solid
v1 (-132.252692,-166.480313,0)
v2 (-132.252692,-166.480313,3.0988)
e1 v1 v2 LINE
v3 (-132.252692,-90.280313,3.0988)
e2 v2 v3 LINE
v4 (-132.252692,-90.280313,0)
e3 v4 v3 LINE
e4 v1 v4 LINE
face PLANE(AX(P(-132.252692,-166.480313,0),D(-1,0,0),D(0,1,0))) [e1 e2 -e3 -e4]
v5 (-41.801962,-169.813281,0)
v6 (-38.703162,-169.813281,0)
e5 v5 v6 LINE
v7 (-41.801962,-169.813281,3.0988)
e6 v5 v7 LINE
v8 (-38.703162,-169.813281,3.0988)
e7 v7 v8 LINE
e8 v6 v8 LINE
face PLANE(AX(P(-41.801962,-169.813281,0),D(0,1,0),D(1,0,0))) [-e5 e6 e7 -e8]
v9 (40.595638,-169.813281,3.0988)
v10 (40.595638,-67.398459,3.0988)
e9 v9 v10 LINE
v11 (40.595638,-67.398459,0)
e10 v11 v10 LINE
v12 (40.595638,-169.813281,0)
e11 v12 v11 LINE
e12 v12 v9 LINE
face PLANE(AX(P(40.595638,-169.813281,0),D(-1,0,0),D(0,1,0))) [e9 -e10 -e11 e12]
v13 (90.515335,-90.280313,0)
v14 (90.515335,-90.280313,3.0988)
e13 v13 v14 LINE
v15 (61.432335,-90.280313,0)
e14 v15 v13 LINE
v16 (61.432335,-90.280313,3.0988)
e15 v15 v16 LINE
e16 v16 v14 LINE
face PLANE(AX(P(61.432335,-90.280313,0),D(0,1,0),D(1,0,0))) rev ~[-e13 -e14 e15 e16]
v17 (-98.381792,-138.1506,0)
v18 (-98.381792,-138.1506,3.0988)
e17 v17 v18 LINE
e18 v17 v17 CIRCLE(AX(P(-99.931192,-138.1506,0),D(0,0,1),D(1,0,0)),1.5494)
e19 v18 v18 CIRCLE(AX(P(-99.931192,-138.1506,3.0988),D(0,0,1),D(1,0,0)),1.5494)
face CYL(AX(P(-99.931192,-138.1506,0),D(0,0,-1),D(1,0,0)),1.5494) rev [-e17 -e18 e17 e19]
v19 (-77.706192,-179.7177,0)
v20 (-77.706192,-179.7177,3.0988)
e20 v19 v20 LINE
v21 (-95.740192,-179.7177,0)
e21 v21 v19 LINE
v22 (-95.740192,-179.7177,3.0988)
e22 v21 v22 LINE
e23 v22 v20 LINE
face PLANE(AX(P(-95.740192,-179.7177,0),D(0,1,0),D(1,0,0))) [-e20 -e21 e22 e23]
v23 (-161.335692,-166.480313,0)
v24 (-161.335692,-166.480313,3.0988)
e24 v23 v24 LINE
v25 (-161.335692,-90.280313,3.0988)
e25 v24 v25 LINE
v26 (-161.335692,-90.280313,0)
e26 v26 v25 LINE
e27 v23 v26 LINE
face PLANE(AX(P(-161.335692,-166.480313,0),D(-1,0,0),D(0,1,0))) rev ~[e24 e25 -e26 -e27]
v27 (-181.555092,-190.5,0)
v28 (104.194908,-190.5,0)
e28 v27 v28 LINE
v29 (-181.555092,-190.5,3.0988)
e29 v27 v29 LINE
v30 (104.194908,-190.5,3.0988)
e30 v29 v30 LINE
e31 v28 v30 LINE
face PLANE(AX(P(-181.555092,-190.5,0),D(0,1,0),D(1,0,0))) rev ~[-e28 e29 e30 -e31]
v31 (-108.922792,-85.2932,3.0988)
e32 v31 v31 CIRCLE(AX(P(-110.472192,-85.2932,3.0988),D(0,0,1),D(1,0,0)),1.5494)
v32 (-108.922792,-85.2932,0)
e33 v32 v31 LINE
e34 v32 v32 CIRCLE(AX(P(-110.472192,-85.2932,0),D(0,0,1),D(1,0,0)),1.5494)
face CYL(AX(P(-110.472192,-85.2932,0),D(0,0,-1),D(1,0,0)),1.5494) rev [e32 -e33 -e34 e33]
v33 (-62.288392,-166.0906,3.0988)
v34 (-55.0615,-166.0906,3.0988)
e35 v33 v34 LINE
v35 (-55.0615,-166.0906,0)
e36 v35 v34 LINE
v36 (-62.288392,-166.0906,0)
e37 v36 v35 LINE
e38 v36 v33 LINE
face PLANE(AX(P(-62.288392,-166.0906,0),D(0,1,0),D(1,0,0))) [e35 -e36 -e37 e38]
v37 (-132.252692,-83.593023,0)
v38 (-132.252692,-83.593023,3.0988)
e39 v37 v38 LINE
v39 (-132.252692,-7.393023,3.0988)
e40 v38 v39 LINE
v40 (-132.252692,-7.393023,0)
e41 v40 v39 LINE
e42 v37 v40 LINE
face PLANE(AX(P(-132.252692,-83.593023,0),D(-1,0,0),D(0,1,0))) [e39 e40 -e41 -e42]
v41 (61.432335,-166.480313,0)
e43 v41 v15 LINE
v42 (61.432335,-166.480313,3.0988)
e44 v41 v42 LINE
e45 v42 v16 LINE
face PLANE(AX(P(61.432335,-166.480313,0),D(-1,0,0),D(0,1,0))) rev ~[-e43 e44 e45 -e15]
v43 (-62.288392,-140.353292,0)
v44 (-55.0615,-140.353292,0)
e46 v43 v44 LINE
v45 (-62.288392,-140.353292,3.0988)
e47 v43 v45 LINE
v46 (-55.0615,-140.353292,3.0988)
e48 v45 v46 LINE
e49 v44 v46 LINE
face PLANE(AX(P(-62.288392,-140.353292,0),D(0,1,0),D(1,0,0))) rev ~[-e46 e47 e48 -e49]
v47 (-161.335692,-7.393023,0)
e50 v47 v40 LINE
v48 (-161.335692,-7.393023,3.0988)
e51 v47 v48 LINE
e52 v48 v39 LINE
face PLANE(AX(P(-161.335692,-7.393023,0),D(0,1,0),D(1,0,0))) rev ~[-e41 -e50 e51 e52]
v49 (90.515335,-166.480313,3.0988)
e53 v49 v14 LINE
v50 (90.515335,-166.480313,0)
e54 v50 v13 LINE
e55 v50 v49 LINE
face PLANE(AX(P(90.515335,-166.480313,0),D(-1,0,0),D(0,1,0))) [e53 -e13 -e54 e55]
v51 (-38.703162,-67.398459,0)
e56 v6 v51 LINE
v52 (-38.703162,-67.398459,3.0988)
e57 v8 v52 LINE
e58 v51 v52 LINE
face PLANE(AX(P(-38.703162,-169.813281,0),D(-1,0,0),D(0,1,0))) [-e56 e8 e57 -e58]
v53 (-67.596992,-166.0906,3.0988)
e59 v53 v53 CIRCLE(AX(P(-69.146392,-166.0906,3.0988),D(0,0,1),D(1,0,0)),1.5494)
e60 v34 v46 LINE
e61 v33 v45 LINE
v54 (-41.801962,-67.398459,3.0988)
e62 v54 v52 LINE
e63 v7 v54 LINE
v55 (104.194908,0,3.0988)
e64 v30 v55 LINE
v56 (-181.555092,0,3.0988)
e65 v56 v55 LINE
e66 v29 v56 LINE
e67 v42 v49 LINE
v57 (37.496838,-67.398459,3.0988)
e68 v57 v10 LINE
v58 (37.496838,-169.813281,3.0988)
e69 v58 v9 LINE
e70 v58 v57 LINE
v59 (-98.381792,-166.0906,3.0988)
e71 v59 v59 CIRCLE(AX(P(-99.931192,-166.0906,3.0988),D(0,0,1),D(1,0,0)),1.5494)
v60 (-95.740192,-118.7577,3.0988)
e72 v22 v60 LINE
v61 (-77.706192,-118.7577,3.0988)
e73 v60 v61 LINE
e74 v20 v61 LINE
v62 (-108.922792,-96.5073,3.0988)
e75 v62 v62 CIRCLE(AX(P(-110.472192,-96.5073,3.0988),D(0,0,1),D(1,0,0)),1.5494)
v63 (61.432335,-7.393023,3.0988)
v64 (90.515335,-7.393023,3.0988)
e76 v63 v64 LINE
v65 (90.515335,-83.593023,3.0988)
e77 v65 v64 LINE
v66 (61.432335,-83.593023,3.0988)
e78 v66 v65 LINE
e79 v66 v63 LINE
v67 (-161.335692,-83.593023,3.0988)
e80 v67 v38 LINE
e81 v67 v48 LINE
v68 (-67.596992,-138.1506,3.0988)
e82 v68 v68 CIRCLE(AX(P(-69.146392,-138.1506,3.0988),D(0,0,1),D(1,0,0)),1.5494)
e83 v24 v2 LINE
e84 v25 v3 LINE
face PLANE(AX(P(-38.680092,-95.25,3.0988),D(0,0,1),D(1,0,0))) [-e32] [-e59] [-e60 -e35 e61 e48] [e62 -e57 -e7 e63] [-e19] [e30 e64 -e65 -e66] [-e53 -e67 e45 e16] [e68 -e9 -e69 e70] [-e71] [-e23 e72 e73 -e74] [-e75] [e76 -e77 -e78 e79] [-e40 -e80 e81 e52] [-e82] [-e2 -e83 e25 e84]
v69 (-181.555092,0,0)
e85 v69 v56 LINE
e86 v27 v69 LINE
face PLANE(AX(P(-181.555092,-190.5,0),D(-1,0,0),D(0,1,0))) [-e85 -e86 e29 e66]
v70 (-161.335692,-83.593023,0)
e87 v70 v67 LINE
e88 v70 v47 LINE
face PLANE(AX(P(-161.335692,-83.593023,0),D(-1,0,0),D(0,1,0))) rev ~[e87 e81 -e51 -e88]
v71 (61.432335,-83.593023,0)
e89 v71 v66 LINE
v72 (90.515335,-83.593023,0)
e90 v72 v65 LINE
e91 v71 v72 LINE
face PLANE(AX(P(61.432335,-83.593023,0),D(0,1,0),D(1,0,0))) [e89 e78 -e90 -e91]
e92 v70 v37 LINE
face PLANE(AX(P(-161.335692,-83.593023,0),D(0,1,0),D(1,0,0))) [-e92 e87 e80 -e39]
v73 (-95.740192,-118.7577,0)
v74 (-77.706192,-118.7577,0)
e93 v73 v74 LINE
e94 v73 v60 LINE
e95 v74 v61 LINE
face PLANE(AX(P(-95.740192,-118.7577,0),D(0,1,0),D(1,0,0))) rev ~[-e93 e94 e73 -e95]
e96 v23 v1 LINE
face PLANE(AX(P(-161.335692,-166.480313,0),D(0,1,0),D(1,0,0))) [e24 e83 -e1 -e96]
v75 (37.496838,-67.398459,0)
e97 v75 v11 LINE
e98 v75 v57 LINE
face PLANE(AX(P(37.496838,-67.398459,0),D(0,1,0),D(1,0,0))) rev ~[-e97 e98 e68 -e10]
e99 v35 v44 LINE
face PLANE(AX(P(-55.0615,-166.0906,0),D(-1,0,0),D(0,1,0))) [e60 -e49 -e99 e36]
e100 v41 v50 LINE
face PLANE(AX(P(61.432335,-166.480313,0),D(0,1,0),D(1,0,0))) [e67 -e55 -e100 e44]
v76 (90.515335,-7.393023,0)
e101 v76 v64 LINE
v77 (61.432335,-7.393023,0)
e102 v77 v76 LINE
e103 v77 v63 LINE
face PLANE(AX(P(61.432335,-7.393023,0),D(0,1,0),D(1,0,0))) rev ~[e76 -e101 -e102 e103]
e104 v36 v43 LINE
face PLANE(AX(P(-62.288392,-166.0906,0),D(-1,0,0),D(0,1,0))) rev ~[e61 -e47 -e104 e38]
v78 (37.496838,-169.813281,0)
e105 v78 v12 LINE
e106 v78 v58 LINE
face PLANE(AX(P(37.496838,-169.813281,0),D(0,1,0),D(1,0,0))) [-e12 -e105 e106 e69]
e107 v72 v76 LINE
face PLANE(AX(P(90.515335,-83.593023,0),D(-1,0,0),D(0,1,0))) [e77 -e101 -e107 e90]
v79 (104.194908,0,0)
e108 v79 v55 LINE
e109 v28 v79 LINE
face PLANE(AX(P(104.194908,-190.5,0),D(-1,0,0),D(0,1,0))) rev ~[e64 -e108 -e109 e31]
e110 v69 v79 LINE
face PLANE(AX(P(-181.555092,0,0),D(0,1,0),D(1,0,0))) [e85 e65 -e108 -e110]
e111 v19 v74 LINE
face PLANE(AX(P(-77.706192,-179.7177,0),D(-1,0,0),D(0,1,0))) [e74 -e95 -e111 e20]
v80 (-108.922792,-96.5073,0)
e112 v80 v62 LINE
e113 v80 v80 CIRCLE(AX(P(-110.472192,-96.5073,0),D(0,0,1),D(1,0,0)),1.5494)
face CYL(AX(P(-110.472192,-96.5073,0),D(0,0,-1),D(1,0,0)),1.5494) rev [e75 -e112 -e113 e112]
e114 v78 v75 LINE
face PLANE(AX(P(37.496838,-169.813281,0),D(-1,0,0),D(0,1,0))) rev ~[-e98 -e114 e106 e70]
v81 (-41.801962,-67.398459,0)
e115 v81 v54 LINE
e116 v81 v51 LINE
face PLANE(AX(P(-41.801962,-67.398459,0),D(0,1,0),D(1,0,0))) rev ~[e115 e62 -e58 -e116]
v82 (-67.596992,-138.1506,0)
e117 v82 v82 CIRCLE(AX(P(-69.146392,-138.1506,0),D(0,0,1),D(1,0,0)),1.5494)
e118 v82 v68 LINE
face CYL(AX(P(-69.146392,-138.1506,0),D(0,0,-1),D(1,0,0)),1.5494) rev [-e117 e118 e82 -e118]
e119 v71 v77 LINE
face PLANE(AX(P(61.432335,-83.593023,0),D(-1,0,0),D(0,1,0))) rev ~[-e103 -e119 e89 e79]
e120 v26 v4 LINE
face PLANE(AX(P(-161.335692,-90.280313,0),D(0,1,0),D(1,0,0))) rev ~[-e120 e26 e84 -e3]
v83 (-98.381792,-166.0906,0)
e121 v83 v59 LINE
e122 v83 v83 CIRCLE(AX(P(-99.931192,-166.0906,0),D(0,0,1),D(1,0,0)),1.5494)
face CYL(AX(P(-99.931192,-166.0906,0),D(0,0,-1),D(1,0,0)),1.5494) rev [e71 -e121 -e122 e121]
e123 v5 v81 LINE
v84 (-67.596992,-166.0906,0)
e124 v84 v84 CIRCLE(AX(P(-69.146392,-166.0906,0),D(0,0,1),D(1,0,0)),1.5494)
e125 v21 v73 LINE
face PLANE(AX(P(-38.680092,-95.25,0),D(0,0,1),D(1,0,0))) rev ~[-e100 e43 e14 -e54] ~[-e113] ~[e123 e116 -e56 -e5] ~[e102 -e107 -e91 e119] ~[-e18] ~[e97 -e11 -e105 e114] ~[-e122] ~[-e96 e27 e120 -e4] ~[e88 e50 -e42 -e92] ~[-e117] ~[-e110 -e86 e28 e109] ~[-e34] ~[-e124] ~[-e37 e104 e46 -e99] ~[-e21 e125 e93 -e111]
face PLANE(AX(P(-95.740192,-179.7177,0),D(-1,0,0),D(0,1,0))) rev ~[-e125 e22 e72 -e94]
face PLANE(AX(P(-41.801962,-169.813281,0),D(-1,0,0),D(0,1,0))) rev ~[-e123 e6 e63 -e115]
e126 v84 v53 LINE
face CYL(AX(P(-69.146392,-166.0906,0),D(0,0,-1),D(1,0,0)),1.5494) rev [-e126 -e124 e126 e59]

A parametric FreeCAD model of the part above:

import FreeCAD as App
import Part
import Sketcher

V = App.Vector
Q = App.Units.Quantity


def add_polygon(sketch, points):
    """Adds a closed chain of lines whose ends are joined by coincident constraints."""
    first, n = sketch.GeometryCount, len(points)
    for a, b in zip(points, points[1:] + points[:1]):
        sketch.addGeometry(Part.LineSegment(App.Vector(*a, 0), App.Vector(*b, 0)), False)
    for i in range(n):
        sketch.addConstraint(Sketcher.Constraint("Coincident", first + i, 2, first + (i + 1) % n, 1))

doc = App.newDocument("Part")
body = doc.addObject("PartDesign::Body", "Body")

# Sketch on XY plane
sketch1 = body.newObject("Sketcher::SketchObject", "Sketch")
sketch1.AttachmentSupport = (doc.getObject("XY_Plane"), [""])
sketch1.MapMode = "FlatFace"
add_polygon(sketch1, [(-181.6, 0), (-181.6, -190.5), (104.2, -190.5), (104.2, 0)])  # lines 0-3
sketch1.addGeometry(Part.Circle(V(-99.9, -166.1, 0), V(0, 0, 1), 1.5), False)  # 4
sketch1.addGeometry(Part.Circle(V(-99.9, -138.2, 0), V(0, 0, 1), 1.5), False)  # 5
sketch1.addGeometry(Part.Circle(V(-69.1, -166.1, 0), V(0, 0, 1), 1.5), False)  # 6
add_polygon(sketch1, [(-77.7, -179.7), (-95.7, -179.7), (-95.7, -118.8), (-77.7, -118.8)])  # lines 7-10
sketch1.addGeometry(Part.Circle(V(-69.1, -138.2, 0), V(0, 0, 1), 1.5), False)  # 11
add_polygon(sketch1, [(-55.1, -166.1), (-62.3, -166.1), (-62.3, -140.4), (-55.1, -140.4)])  # lines 12-15
add_polygon(sketch1, [(-132.3, -166.5), (-161.3, -166.5), (-161.3, -90.3), (-132.3, -90.3)])  # lines 16-19
sketch1.addGeometry(Part.Circle(V(-110.5, -96.5, 0), V(0, 0, 1), 1.5), False)  # 20
add_polygon(sketch1, [(-38.7, -169.8), (-41.8, -169.8), (-41.8, -67.4), (-38.7, -67.4)])  # lines 21-24
add_polygon(sketch1, [(40.6, -169.8), (37.5, -169.8), (37.5, -67.4), (40.6, -67.4)])  # lines 25-28
add_polygon(sketch1, [(90.5, -166.5), (61.4, -166.5), (61.4, -90.3), (90.5, -90.3)])  # lines 29-32
sketch1.addGeometry(Part.Circle(V(-110.5, -85.3, 0), V(0, 0, 1), 1.5), False)  # 33
add_polygon(sketch1, [(-132.3, -83.6), (-161.3, -83.6), (-161.3, -7.4), (-132.3, -7.4)])  # lines 34-37
add_polygon(sketch1, [(90.5, -83.6), (61.4, -83.6), (61.4, -7.4), (90.5, -7.4)])  # lines 38-41
sketch1.addConstraint(Sketcher.Constraint("Vertical", 0))
sketch1.addConstraint(Sketcher.Constraint("Horizontal", 1))
sketch1.addConstraint(Sketcher.Constraint("Vertical", 2))
sketch1.addConstraint(Sketcher.Constraint("Horizontal", 3))
sketch1.addConstraint(Sketcher.Constraint("Horizontal", 7))
sketch1.addConstraint(Sketcher.Constraint("Vertical", 8))
sketch1.addConstraint(Sketcher.Constraint("Horizontal", 9))
sketch1.addConstraint(Sketcher.Constraint("Vertical", 10))
sketch1.addConstraint(Sketcher.Constraint("Horizontal", 12))
sketch1.addConstraint(Sketcher.Constraint("Vertical", 13))
sketch1.addConstraint(Sketcher.Constraint("Horizontal", 14))
sketch1.addConstraint(Sketcher.Constraint("Vertical", 15))
sketch1.addConstraint(Sketcher.Constraint("Horizontal", 16))
sketch1.addConstraint(Sketcher.Constraint("Vertical", 17))
sketch1.addConstraint(Sketcher.Constraint("Horizontal", 18))
sketch1.addConstraint(Sketcher.Constraint("Vertical", 19))
sketch1.addConstraint(Sketcher.Constraint("Horizontal", 21))
sketch1.addConstraint(Sketcher.Constraint("Vertical", 22))
sketch1.addConstraint(Sketcher.Constraint("Horizontal", 23))
sketch1.addConstraint(Sketcher.Constraint("Vertical", 24))
sketch1.addConstraint(Sketcher.Constraint("Horizontal", 25))
sketch1.addConstraint(Sketcher.Constraint("Vertical", 26))
sketch1.addConstraint(Sketcher.Constraint("Horizontal", 27))
sketch1.addConstraint(Sketcher.Constraint("Vertical", 28))
sketch1.addConstraint(Sketcher.Constraint("Horizontal", 29))
sketch1.addConstraint(Sketcher.Constraint("Vertical", 30))
sketch1.addConstraint(Sketcher.Constraint("Horizontal", 31))
sketch1.addConstraint(Sketcher.Constraint("Vertical", 32))
sketch1.addConstraint(Sketcher.Constraint("Horizontal", 34))
sketch1.addConstraint(Sketcher.Constraint("Vertical", 35))
sketch1.addConstraint(Sketcher.Constraint("Horizontal", 36))
sketch1.addConstraint(Sketcher.Constraint("Vertical", 37))
sketch1.addConstraint(Sketcher.Constraint("Horizontal", 38))
sketch1.addConstraint(Sketcher.Constraint("Vertical", 39))
sketch1.addConstraint(Sketcher.Constraint("Horizontal", 40))
sketch1.addConstraint(Sketcher.Constraint("Vertical", 41))
sketch1.addConstraint(Sketcher.Constraint("Equal", 4, 5))
sketch1.addConstraint(Sketcher.Constraint("Equal", 5, 6))
sketch1.addConstraint(Sketcher.Constraint("Equal", 6, 11))
sketch1.addConstraint(Sketcher.Constraint("Equal", 11, 20))
sketch1.addConstraint(Sketcher.Constraint("Equal", 20, 33))
sketch1.addConstraint(Sketcher.Constraint("PointOnObject", 2, 2, -1))
sketch1.addConstraint(Sketcher.Constraint("Horizontal", 4, 3, 6, 3))
sketch1.addConstraint(Sketcher.Constraint("Horizontal", 5, 3, 11, 3))
sketch1.addConstraint(Sketcher.Constraint("Horizontal", 6, 3, 12, 2))
sketch1.addConstraint(Sketcher.Constraint("Horizontal", 24, 2, 25, 2))
sketch1.addConstraint(Sketcher.Constraint("Horizontal", 23, 2, 26, 2))
sketch1.addConstraint(Sketcher.Constraint("Horizontal", 19, 2, 29, 2))
sketch1.addConstraint(Sketcher.Constraint("Horizontal", 18, 2, 30, 2))
sketch1.addConstraint(Sketcher.Constraint("Horizontal", 37, 2, 38, 2))
sketch1.addConstraint(Sketcher.Constraint("Horizontal", 36, 2, 39, 2))
sketch1.addConstraint(Sketcher.Constraint("Vertical", 4, 3, 5, 3))
sketch1.addConstraint(Sketcher.Constraint("Vertical", 6, 3, 11, 3))
sketch1.addConstraint(Sketcher.Constraint("Vertical", 20, 3, 33, 3))
sketch1.addConstraint(Sketcher.Constraint("Vertical", 17, 2, 34, 2))
sketch1.addConstraint(Sketcher.Constraint("Vertical", 19, 2, 36, 2))
sketch1.addConstraint(Sketcher.Constraint("Vertical", 30, 2, 38, 2))
sketch1.addConstraint(Sketcher.Constraint("Vertical", 32, 2, 40, 2))
sketch1.addConstraint(Sketcher.Constraint("Equal", 23, 25))
sketch1.addConstraint(Sketcher.Constraint("Equal", 18, 29))
sketch1.addConstraint(Sketcher.Constraint("Equal", 32, 35))
sketch1.addConstraint(Sketcher.Constraint("DistanceY", 17, 1, 17, 2, Q("3 in")))
sketch1.addConstraint(Sketcher.Constraint("Diameter", 4, Q("0.122 in")))
sketch1.addConstraint(Sketcher.Constraint("DistanceY", 0, 2, 0, 1, Q("7.5 in")))
sketch1.addConstraint(Sketcher.Constraint("DistanceY", 8, 1, 8, 2, Q("2.4 in")))
sketch1.addConstraint(Sketcher.Constraint("DistanceX", 24, 2, 25, 2, Q("3 in")))
sketch1.addConstraint(Sketcher.Constraint("DistanceX", 1, 1, 1, 2, Q("11.25 in")))
sketch1.addConstraint(Sketcher.Constraint("DistanceX", 7, 2, 7, 1, Q("0.71 in")))
sketch1.addConstraint(Sketcher.Constraint("DistanceY", 4, 3, 5, 3, Q("1.1 in")))
sketch1.addConstraint(Sketcher.Constraint("DistanceX", 16, 2, 16, 1, Q("1.145 in")))
sketch1.addConstraint(Sketcher.Constraint("DistanceX", 21, 2, 21, 1, Q("0.122 in")))
sketch1.addConstraint(Sketcher.Constraint("DistanceX", 20, 3, 7, 2, Q("0.58 in")))
sketch1.addConstraint(Sketcher.Constraint("DistanceX", 6, 3, 12, 2, Q("0.27 in")))
sketch1.addConstraint(Sketcher.Constraint("DistanceY", 4, 3, -1, 1, Q("6.539 in")))
sketch1.addConstraint(Sketcher.Constraint("DistanceY", 33, 3, -1, 1, Q("3.358 in")))
sketch1.addConstraint(Sketcher.Constraint("DistanceX", 4, 3, 6, 3, Q("1.212 in")))
sketch1.addConstraint(Sketcher.Constraint("DistanceX", 20, 3, 5, 3, Q("0.415 in")))
sketch1.addConstraint(Sketcher.Constraint("DistanceY", 7, 2, 20, 3, Q("3.276 in")))
sketch1.addConstraint(Sketcher.Constraint("DistanceX", 18, 2, 8, 2, Q("1.4375 in")))
sketch1.addConstraint(Sketcher.Constraint("DistanceY", 20, 3, -1, 1, Q("3.7995 in")))
sketch1.addConstraint(Sketcher.Constraint("DistanceX", 12, 2, 12, 1, 7.226892))
sketch1.addConstraint(Sketcher.Constraint("DistanceY", 22, 1, 22, 2, 102.414822))
sketch1.addConstraint(Sketcher.Constraint("DistanceX", 14, 2, -1, 1, 55.0615))
sketch1.addConstraint(Sketcher.Constraint("DistanceX", 0, 2, 4, 3, 81.6239))
sketch1.addConstraint(Sketcher.Constraint("DistanceY", 13, 1, 13, 2, 25.737308))
sketch1.addConstraint(Sketcher.Constraint("DistanceY", 21, 2, -1, 1, 169.813281))
sketch1.addConstraint(Sketcher.Constraint("DistanceX", 12, 2, 21, 2, 20.48643))
sketch1.addConstraint(Sketcher.Constraint("DistanceY", 17, 2, 34, 2, 6.68729))
sketch1.addConstraint(Sketcher.Constraint("DistanceY", 16, 2, -1, 1, 166.480313))
sketch1.addConstraint(Sketcher.Constraint("DistanceX", -1, 1, 29, 2, 61.432335))
pad1 = body.newObject("PartDesign::Pad", "Pad")
pad1.Profile = sketch1
pad1.Length = Q("0.122 in")

doc.recompute()
